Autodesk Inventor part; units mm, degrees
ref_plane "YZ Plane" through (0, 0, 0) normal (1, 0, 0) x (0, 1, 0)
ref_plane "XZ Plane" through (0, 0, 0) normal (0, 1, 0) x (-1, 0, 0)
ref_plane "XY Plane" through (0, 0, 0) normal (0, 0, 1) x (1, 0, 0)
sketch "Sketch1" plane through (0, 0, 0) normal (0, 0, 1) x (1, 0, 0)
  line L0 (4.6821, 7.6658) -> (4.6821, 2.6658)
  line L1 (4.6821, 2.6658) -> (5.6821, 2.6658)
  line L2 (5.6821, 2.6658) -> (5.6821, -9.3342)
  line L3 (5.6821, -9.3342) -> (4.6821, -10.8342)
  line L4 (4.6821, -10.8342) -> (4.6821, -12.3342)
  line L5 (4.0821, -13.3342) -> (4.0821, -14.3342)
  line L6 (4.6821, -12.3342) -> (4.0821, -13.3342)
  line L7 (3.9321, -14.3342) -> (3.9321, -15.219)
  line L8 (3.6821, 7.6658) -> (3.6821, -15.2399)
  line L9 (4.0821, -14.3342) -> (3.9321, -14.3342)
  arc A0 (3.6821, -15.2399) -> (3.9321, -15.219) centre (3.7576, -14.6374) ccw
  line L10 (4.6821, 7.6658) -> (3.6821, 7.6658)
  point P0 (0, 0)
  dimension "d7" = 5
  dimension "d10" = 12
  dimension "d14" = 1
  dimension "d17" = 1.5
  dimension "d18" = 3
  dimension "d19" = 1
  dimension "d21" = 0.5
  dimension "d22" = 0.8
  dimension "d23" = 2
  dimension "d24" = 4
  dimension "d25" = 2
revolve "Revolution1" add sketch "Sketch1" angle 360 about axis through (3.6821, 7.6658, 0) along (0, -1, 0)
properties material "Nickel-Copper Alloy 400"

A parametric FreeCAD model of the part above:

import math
import FreeCAD as App
import Part
import Sketcher
from FreeCAD import Vector

doc = App.newDocument("Part")
body = doc.addObject("PartDesign::Body", "Body")

# Sketch on XY plane
sketch1 = body.newObject("Sketcher::SketchObject", "Sketch")
sketch1.AttachmentSupport = (doc.getObject("XY_Plane"), [""])
sketch1.MapMode = "FlatFace"
sketch1.addGeometry(Part.LineSegment(Vector(4.68, 2.67, 0), Vector(4.68, 7.67, 0)), False)
sketch1.addGeometry(Part.LineSegment(Vector(4.68, 7.67, 0), Vector(3.68, 7.67, 0)), False)
sketch1.addGeometry(Part.LineSegment(Vector(3.68, 7.67, 0), Vector(3.68, -15.24, 0)), False)
sketch1.addGeometry(Part.ArcOfCircle(Part.Circle(Vector(3.76, -14.64, 0), Vector(0, 0, 1), 0.61), math.radians(-97), math.radians(-73)), False)
sketch1.addGeometry(Part.LineSegment(Vector(3.93, -15.22, 0), Vector(3.93, -14.33, 0)), False)
sketch1.addGeometry(Part.LineSegment(Vector(3.93, -14.33, 0), Vector(4.08, -14.33, 0)), False)
sketch1.addGeometry(Part.LineSegment(Vector(4.08, -14.33, 0), Vector(4.08, -13.33, 0)), False)
sketch1.addGeometry(Part.LineSegment(Vector(4.08, -13.33, 0), Vector(4.68, -12.33, 0)), False)
sketch1.addGeometry(Part.LineSegment(Vector(4.68, -12.33, 0), Vector(4.68, -10.83, 0)), False)
sketch1.addGeometry(Part.LineSegment(Vector(4.68, -10.83, 0), Vector(5.68, -9.33, 0)), False)
sketch1.addGeometry(Part.LineSegment(Vector(5.68, -9.33, 0), Vector(5.68, 2.67, 0)), False)
sketch1.addGeometry(Part.LineSegment(Vector(5.68, 2.67, 0), Vector(4.68, 2.67, 0)), False)
sketch1.addGeometry(Part.LineSegment(Vector(3.68, 7.67, 0), Vector(3.68, -15.24, 0)), True)  # axis
sketch1.addConstraint(Sketcher.Constraint("Coincident", 0, 2, 1, 1))
sketch1.addConstraint(Sketcher.Constraint("Coincident", 1, 2, 2, 1))
sketch1.addConstraint(Sketcher.Constraint("Coincident", 2, 2, 3, 1))
sketch1.addConstraint(Sketcher.Constraint("Coincident", 3, 2, 4, 1))
sketch1.addConstraint(Sketcher.Constraint("Coincident", 4, 2, 5, 1))
sketch1.addConstraint(Sketcher.Constraint("Coincident", 5, 2, 6, 1))
sketch1.addConstraint(Sketcher.Constraint("Coincident", 6, 2, 7, 1))
sketch1.addConstraint(Sketcher.Constraint("Coincident", 7, 2, 8, 1))
sketch1.addConstraint(Sketcher.Constraint("Coincident", 8, 2, 9, 1))
sketch1.addConstraint(Sketcher.Constraint("Coincident", 9, 2, 10, 1))
sketch1.addConstraint(Sketcher.Constraint("Coincident", 10, 2, 11, 1))
sketch1.addConstraint(Sketcher.Constraint("Coincident", 11, 2, 0, 1))
sketch1.addConstraint(Sketcher.Constraint("Vertical", 0))
sketch1.addConstraint(Sketcher.Constraint("Horizontal", 1))
sketch1.addConstraint(Sketcher.Constraint("Vertical", 2))
sketch1.addConstraint(Sketcher.Constraint("Vertical", 4))
sketch1.addConstraint(Sketcher.Constraint("Horizontal", 5))
sketch1.addConstraint(Sketcher.Constraint("Vertical", 6))
sketch1.addConstraint(Sketcher.Constraint("Vertical", 8))
sketch1.addConstraint(Sketcher.Constraint("Vertical", 10))
sketch1.addConstraint(Sketcher.Constraint("Horizontal", 11))
sketch1.addConstraint(Sketcher.Constraint("Vertical", 12))
sketch1.addConstraint(Sketcher.Constraint("Coincident", 12, 1, 1, 2))
sketch1.addConstraint(Sketcher.Constraint("Vertical", 0, 2, 7, 2))
sketch1.addConstraint(Sketcher.Constraint("Equal", 1, 11))
sketch1.addConstraint(Sketcher.Constraint("Equal", 11, 6))
sketch1.addConstraint(Sketcher.Constraint("Equal", 2, 12))
sketch1.addConstraint(Sketcher.Constraint("DistanceX", 1, 2, 1, 1, 1.0))
sketch1.addConstraint(Sketcher.Constraint("DistanceY", 0, 1, 0, 2, 5.0))
sketch1.addConstraint(Sketcher.Constraint("DistanceY", 10, 1, 10, 2, 12.0))
sketch1.addConstraint(Sketcher.Constraint("DistanceY", 8, 1, 8, 2, 1.5))
sketch1.addConstraint(Sketcher.Constraint("DistanceY", 6, 2, 7, 2, 1.0))
sketch1.addConstraint(Sketcher.Constraint("DistanceY", 7, 2, 9, 2, 3.0))
sketch1.addConstraint(Sketcher.Constraint("DistanceX", 5, 1, 5, 2, 0.15))
sketch1.addConstraint(Sketcher.Constraint("Radius", 3, 0.6072))
sketch1.addConstraint(Sketcher.Constraint("DistanceX", 2, 2, 5, 2, 0.4))
sketch1.addConstraint(Sketcher.Constraint("DistanceY", 2, 2, -1, 1, 15.24))
sketch1.addConstraint(Sketcher.Constraint("DistanceY", 2, 2, 2, 1, 22.9057))
sketch1.addConstraint(Sketcher.Constraint("DistanceY", 4, 1, 4, 2, 0.8848))
sketch1.addConstraint(Sketcher.Constraint("DistanceX", -1, 1, 0, 2, 4.682))
revolution = body.newObject("PartDesign::Revolution", "Revolution")
revolution.Profile = sketch1
revolution.ReferenceAxis = (sketch1, ["Axis0"])
revolution.Angle = 360

doc.recompute()
